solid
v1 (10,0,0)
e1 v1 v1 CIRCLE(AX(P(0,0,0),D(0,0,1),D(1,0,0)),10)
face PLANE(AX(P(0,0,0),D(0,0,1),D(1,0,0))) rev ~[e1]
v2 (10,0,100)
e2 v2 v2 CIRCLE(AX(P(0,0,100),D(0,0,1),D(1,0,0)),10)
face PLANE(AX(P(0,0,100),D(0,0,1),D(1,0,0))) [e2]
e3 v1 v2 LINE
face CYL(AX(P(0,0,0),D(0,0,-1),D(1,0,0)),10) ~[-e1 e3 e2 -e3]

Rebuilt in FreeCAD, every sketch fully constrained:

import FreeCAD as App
import Part
import Sketcher

V = App.Vector
Q = App.Units.Quantity

doc = App.newDocument("Part")
body = doc.addObject("PartDesign::Body", "Body")

# Sketch on XY plane
sketch1 = body.newObject("Sketcher::SketchObject", "Sketch")
sketch1.AttachmentSupport = (doc.getObject("XY_Plane"), [""])
sketch1.MapMode = "FlatFace"
sketch1.addGeometry(Part.Circle(V(0, 0, 0), V(0, 0, 1), 10), False)
sketch1.addConstraint(Sketcher.Constraint("Coincident", 0, 3, -1, 1))
sketch1.addConstraint(Sketcher.Constraint("Diameter", 0, Q("20 mm")))
pad1 = body.newObject("PartDesign::Pad", "Pad")
pad1.Profile = sketch1
pad1.Length = 100

doc.recompute()
